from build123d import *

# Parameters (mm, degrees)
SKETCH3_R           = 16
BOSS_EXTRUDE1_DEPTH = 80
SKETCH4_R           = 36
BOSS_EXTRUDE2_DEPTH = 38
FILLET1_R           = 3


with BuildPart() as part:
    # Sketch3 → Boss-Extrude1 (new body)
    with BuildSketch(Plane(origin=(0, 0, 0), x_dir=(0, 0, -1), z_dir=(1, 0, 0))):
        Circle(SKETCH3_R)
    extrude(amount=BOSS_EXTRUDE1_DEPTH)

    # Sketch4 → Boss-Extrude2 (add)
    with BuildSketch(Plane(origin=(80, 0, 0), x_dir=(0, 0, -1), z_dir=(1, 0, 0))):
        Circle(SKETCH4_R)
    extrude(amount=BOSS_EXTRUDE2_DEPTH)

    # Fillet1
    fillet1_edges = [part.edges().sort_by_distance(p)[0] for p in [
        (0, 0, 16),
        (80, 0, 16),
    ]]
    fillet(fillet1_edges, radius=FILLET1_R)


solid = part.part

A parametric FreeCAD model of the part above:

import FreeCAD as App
import Part
import Sketcher

V = App.Vector
Q = App.Units.Quantity


def edges_at(feature, points):
    """Names of the edges that pass closest to the given points."""
    edges = feature.Shape.Edges
    near = lambda p: min(range(len(edges)), key=lambda i: edges[i].distToShape(Part.Vertex(*p))[0])
    return sorted({f"Edge{near(p) + 1}" for p in points})

doc = App.newDocument("Part")
body = doc.addObject("PartDesign::Body", "Body")

# Sketch on YZ plane
sketch1 = body.newObject("Sketcher::SketchObject", "Sketch")
sketch1.AttachmentSupport = (doc.getObject("YZ_Plane"), [""])
sketch1.MapMode = "FlatFace"
sketch1.addGeometry(Part.Circle(V(0, 0, 0), V(0, 0, 1), 16), False)
sketch1.addConstraint([
    Sketcher.Constraint("Coincident", 0, 3, -1, 1),
    Sketcher.Constraint("Diameter", 0, Q("32 mm")),
])
pad1 = body.newObject("PartDesign::Pad", "Pad")
pad1.Profile = sketch1
pad1.Length = 80

# Sketch on YZ plane
sketch2 = body.newObject("Sketcher::SketchObject", "Sketch001")
sketch2.AttachmentSupport = (doc.getObject("YZ_Plane"), [""])
sketch2.MapMode = "FlatFace"
sketch2.AttachmentOffset = App.Placement(V(0, 0, 80), App.Rotation())
sketch2.addGeometry(Part.Circle(V(0, 0, 0), V(0, 0, 1), 36), False)
sketch2.addConstraint([
    Sketcher.Constraint("Coincident", 0, 3, -1, 1),
    Sketcher.Constraint("Diameter", 0, Q("72 mm")),
])
pad2 = body.newObject("PartDesign::Pad", "Pad001")
pad2.Profile = sketch2
pad2.Length = 38
doc.recompute()

fillet = body.newObject("PartDesign::Fillet", "Fillet")
fillet.Base = (pad2, edges_at(pad2, [(0, 0, 16), (80, 0, 16)]))
fillet.Radius = 3

doc.recompute()
